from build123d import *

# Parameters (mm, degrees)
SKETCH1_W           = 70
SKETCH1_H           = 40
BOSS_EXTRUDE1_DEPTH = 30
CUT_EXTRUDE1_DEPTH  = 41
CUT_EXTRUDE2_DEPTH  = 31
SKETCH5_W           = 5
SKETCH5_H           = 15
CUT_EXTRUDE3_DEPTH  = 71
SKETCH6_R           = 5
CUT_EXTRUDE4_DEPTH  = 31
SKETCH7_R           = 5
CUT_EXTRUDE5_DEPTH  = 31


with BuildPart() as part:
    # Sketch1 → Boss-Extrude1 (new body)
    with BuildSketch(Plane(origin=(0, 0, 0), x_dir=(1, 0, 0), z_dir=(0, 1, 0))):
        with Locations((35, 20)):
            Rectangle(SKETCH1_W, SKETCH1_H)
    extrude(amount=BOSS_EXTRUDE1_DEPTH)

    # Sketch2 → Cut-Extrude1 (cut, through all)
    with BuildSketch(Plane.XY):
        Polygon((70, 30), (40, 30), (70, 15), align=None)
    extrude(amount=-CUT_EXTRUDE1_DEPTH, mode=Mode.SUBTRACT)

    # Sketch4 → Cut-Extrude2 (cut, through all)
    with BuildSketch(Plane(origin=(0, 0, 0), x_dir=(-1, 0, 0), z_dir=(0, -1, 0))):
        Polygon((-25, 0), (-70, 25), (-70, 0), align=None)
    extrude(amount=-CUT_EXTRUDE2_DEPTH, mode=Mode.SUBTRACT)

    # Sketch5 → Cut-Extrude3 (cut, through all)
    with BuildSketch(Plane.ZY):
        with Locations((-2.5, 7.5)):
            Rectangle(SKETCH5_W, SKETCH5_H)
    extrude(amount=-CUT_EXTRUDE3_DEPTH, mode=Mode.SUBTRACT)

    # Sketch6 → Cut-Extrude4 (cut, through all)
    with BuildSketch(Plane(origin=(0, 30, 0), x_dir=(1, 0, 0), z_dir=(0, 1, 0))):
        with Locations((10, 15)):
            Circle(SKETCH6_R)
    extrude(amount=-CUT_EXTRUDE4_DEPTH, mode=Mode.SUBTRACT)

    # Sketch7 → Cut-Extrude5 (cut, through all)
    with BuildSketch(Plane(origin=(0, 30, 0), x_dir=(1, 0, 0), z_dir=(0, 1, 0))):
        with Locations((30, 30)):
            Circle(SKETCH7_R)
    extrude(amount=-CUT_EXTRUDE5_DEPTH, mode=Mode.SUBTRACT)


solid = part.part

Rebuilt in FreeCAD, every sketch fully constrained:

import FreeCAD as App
import Part
import Sketcher

V = App.Vector


def add_polygon(sketch, points):
    """Adds a closed chain of lines whose ends are joined by coincident constraints."""
    first, n = sketch.GeometryCount, len(points)
    for a, b in zip(points, points[1:] + points[:1]):
        sketch.addGeometry(Part.LineSegment(App.Vector(*a, 0), App.Vector(*b, 0)), False)
    for i in range(n):
        sketch.addConstraint(Sketcher.Constraint("Coincident", first + i, 2, first + (i + 1) % n, 1))

doc = App.newDocument("Part")
body = doc.addObject("PartDesign::Body", "Body")

sketch1 = body.newObject("Sketcher::SketchObject", "Sketch")
sketch1.AttachmentSupport = (doc.getObject("XZ_Plane"), [""])
sketch1.MapMode = "FlatFace"
add_polygon(sketch1, [(0, -40), (0, 0), (70, 0), (70, -40)])
sketch1.addConstraint(Sketcher.Constraint("Vertical", 0))
sketch1.addConstraint(Sketcher.Constraint("Horizontal", 1))
sketch1.addConstraint(Sketcher.Constraint("Vertical", 2))
sketch1.addConstraint(Sketcher.Constraint("Horizontal", 3))
sketch1.addConstraint(Sketcher.Constraint("Coincident", 0, 2, -1, 1))
sketch1.addConstraint(Sketcher.Constraint("DistanceX", 1, 1, 1, 2, 70.0))
sketch1.addConstraint(Sketcher.Constraint("DistanceY", 0, 1, 0, 2, 40.0))
pad1 = body.newObject("PartDesign::Pad", "Pad")
pad1.Profile = sketch1
pad1.Length = 30
pad1.Reversed = True

sketch2 = body.newObject("Sketcher::SketchObject", "Sketch001")
sketch2.AttachmentSupport = (doc.getObject("XY_Plane"), [""])
sketch2.MapMode = "FlatFace"
add_polygon(sketch2, [(70, 30), (40, 30), (70, 15)])
sketch2.addConstraint(Sketcher.Constraint("Horizontal", 0))
sketch2.addConstraint(Sketcher.Constraint("Vertical", 2))
sketch2.addConstraint(Sketcher.Constraint("DistanceX", 0, 2, 0, 1, 30.0))
sketch2.addConstraint(Sketcher.Constraint("DistanceY", 2, 1, 2, 2, 15.0))
sketch2.addConstraint(Sketcher.Constraint("DistanceX", -1, 1, 0, 2, 40.0))
sketch2.addConstraint(Sketcher.Constraint("DistanceY", -1, 1, 0, 2, 30.0))
pocket1 = body.newObject("PartDesign::Pocket", "Pocket")
pocket1.Profile = sketch2
pocket1.Type = "ThroughAll"

sketch3 = body.newObject("Sketcher::SketchObject", "Sketch002")
sketch3.AttachmentSupport = (doc.getObject("XZ_Plane"), [""])
sketch3.MapMode = "FlatFace"
add_polygon(sketch3, [(25, 0), (70, -25), (70, 0)])
sketch3.addConstraint(Sketcher.Constraint("Vertical", 1))
sketch3.addConstraint(Sketcher.Constraint("Horizontal", 2))
sketch3.addConstraint(Sketcher.Constraint("PointOnObject", 1, 2, -1))
sketch3.addConstraint(Sketcher.Constraint("DistanceX", 2, 2, 2, 1, 45.0))
sketch3.addConstraint(Sketcher.Constraint("DistanceY", 1, 1, 1, 2, 25.0))
sketch3.addConstraint(Sketcher.Constraint("DistanceX", -1, 1, 0, 2, 70.0))
pocket2 = body.newObject("PartDesign::Pocket", "Pocket001")
pocket2.Profile = sketch3
pocket2.Type = "ThroughAll"

sketch4 = body.newObject("Sketcher::SketchObject", "Sketch003")
sketch4.AttachmentSupport = (doc.getObject("YZ_Plane"), [""])
sketch4.MapMode = "FlatFace"
add_polygon(sketch4, [(15, -5), (0, -5), (0, 0), (15, 0)])
sketch4.addConstraint(Sketcher.Constraint("Horizontal", 0))
sketch4.addConstraint(Sketcher.Constraint("Vertical", 1))
sketch4.addConstraint(Sketcher.Constraint("Horizontal", 2))
sketch4.addConstraint(Sketcher.Constraint("Vertical", 3))
sketch4.addConstraint(Sketcher.Constraint("Coincident", 1, 2, -1, 1))
sketch4.addConstraint(Sketcher.Constraint("DistanceX", 0, 2, 0, 1, 15.0))
sketch4.addConstraint(Sketcher.Constraint("DistanceY", 1, 1, 1, 2, 5.0))
pocket3 = body.newObject("PartDesign::Pocket", "Pocket002")
pocket3.Profile = sketch4
pocket3.Type = "ThroughAll"
pocket3.Reversed = True

sketch5 = body.newObject("Sketcher::SketchObject", "Sketch004")
sketch5.AttachmentSupport = (doc.getObject("XZ_Plane"), [""])
sketch5.MapMode = "FlatFace"
sketch5.AttachmentOffset = App.Placement(V(0, 0, -30), App.Rotation())
sketch5.addGeometry(Part.Circle(V(10, -15, 0), V(0, 0, 1), 5), False)
sketch5.addConstraint(Sketcher.Constraint("Diameter", 0, 10.0))
sketch5.addConstraint(Sketcher.Constraint("DistanceX", -1, 1, 0, 3, 10.0))
sketch5.addConstraint(Sketcher.Constraint("DistanceY", 0, 3, -1, 1, 15.0))
pocket4 = body.newObject("PartDesign::Pocket", "Pocket003")
pocket4.Profile = sketch5
pocket4.Type = "ThroughAll"
pocket4.Reversed = True

sketch6 = body.newObject("Sketcher::SketchObject", "Sketch005")
sketch6.AttachmentSupport = (doc.getObject("XZ_Plane"), [""])
sketch6.MapMode = "FlatFace"
sketch6.AttachmentOffset = App.Placement(V(0, 0, -30), App.Rotation())
sketch6.addGeometry(Part.Circle(V(30, -30, 0), V(0, 0, 1), 5), False)
sketch6.addConstraint(Sketcher.Constraint("Diameter", 0, 10.0))
sketch6.addConstraint(Sketcher.Constraint("DistanceX", -1, 1, 0, 3, 30.0))
sketch6.addConstraint(Sketcher.Constraint("DistanceY", 0, 3, -1, 1, 30.0))
pocket5 = body.newObject("PartDesign::Pocket", "Pocket004")
pocket5.Profile = sketch6
pocket5.Type = "ThroughAll"
pocket5.Reversed = True

doc.recompute()
